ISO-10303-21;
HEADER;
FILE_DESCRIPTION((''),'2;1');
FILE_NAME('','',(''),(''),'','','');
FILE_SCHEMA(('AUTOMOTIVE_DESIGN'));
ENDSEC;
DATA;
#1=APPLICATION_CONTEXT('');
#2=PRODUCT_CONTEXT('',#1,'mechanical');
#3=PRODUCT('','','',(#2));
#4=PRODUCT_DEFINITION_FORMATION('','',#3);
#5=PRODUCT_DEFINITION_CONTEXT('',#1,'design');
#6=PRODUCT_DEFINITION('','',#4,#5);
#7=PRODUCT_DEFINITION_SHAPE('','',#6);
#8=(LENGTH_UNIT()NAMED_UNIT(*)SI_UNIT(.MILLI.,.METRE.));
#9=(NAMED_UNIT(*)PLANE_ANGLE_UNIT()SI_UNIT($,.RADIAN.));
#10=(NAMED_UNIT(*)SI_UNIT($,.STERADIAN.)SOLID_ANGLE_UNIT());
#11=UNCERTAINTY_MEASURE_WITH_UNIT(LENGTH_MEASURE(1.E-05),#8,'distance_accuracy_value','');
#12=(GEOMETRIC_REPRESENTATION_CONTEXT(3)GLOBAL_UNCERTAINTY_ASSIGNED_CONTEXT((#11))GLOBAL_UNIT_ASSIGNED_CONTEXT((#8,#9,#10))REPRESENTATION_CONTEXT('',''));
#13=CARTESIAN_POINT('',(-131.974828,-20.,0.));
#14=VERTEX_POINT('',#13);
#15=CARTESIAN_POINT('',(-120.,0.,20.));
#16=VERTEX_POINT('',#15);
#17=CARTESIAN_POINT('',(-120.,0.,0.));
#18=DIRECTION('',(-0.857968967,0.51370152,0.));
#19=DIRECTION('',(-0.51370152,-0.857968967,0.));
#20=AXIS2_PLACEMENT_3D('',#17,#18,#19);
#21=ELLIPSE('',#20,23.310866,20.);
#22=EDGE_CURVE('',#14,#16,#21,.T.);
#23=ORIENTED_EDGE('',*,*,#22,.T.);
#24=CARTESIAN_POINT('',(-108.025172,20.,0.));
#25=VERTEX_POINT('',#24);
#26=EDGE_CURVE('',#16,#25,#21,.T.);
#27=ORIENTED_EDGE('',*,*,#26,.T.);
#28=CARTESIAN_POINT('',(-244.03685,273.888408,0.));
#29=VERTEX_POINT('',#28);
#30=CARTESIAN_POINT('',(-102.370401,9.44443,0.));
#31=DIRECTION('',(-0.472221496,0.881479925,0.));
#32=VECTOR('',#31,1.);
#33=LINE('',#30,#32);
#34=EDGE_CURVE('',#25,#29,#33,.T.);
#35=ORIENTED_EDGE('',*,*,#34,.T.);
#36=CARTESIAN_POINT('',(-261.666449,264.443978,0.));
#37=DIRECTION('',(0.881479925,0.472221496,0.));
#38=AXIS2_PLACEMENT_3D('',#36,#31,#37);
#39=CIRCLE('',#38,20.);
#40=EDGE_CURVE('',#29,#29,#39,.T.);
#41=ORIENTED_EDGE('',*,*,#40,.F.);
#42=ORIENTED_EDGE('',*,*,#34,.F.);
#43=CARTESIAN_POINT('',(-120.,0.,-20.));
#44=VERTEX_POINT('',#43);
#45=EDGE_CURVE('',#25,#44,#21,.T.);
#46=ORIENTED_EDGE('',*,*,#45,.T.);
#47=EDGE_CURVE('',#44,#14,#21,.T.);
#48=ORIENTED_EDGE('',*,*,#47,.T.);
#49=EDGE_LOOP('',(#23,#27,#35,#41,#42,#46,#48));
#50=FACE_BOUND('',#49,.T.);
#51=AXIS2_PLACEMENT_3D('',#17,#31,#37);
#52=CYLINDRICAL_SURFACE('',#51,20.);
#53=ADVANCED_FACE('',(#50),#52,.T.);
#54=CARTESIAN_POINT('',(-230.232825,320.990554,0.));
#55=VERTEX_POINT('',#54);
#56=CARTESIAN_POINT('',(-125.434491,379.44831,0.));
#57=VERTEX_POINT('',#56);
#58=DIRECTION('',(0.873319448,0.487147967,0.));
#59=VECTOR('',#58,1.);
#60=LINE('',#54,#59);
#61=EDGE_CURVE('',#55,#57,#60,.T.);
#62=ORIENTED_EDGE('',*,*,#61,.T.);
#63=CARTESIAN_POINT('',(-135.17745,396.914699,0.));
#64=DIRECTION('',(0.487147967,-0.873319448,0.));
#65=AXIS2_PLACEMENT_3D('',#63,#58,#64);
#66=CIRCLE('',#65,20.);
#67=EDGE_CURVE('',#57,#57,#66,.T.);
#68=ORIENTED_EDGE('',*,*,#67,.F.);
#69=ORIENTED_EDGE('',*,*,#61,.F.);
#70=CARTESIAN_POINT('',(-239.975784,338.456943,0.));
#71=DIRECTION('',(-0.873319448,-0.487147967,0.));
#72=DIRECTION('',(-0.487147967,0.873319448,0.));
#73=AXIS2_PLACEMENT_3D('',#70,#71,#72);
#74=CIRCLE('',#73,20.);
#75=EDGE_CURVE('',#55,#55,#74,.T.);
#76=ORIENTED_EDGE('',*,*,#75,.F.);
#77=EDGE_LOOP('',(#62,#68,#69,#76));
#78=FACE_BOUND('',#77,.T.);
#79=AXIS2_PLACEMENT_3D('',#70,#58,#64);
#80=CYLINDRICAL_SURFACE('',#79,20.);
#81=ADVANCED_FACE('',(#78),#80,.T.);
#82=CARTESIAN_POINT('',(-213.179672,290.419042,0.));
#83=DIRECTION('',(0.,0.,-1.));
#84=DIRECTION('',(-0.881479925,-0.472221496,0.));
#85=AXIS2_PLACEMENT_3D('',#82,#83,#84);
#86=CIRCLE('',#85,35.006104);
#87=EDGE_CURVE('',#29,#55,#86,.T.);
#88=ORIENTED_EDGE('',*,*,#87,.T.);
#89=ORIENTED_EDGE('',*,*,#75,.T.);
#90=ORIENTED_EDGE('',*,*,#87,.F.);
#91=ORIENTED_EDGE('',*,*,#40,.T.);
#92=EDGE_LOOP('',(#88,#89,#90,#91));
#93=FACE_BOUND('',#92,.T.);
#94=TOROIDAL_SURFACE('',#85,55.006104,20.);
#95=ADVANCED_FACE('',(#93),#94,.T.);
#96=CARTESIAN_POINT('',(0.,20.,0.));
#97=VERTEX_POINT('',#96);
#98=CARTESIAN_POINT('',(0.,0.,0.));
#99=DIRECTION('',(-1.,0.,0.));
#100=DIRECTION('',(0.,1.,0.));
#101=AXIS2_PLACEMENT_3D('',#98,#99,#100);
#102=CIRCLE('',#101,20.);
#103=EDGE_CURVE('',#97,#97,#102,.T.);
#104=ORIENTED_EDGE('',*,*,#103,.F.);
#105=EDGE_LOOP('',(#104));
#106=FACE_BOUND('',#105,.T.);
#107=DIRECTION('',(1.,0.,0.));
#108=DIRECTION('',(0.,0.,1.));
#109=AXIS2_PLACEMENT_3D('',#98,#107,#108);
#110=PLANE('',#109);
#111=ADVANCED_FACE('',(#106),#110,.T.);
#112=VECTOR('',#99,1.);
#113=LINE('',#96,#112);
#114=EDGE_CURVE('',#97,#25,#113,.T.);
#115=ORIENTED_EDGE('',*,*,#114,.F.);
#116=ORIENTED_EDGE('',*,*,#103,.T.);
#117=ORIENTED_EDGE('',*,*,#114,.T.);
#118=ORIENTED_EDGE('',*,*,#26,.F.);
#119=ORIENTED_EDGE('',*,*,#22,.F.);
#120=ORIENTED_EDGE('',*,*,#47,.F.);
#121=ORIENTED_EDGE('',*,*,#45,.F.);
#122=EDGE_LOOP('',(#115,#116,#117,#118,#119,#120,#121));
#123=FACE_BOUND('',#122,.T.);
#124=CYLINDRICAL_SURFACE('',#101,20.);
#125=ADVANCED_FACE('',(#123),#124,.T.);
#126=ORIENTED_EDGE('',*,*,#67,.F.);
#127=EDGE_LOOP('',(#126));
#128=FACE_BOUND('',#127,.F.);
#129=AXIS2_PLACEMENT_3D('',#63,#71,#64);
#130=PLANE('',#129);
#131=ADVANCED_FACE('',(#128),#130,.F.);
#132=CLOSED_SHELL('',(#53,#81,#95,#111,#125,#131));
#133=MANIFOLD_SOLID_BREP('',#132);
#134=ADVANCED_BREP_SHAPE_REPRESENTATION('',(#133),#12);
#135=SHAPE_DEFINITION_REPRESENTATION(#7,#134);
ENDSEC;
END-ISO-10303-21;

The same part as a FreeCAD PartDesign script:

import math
import FreeCAD as App
import Part
import Sketcher
from FreeCAD import Vector
Q = App.Units.Quantity

doc = App.newDocument("Part")
params = doc.addObject("Spreadsheet::Sheet", "Params")
for row, (alias, value) in enumerate([
    ("sketch1_diameter", "40 mm"),
    ("sketch2_width", "120 mm"),
    ("sketch2_length", "300 mm"),
    ("sketch2_length2", "120 mm"),
], start=1):
    params.set(f"A{row}", alias)
    params.set(f"B{row}", "=" + value)
    params.setAlias(f"B{row}", alias)

body = doc.addObject("PartDesign::Body", "Body")

sketch1 = doc.addObject("Sketcher::SketchObject", "Sketch")
body.addObject(sketch1)
sketch1.AttachmentSupport = (doc.YZ_Plane, [""])
sketch1.MapMode = "FlatFace"
sketch1.addGeometry(Part.Circle(Vector(0, 0, 0), Vector(0, 0, 1), 20), False)
sketch1.addConstraint(Sketcher.Constraint("Coincident", 0, 3, -1, 1))
sketch1.addConstraint(Sketcher.Constraint("Diameter", 0, Q("40 mm")))
sketch1.setExpression("Constraints[1]", "Params.sketch1_diameter")

sketch2 = doc.addObject("Sketcher::SketchObject", "Sketch001")
body.addObject(sketch2)
sketch2.AttachmentSupport = (doc.XY_Plane, [""])
sketch2.MapMode = "FlatFace"
sketch2.addGeometry(Part.LineSegment(Vector(0, 0, 0), Vector(-120, 0, 0)), False)
sketch2.addGeometry(Part.LineSegment(Vector(-120, 0, 0), Vector(-262, 264, 0)), False)
sketch2.addGeometry(Part.ArcOfCircle(Part.Circle(Vector(-213, 290, 0), Vector(0, 0, 1), 55), math.radians(119), math.radians(208)), False)
sketch2.addGeometry(Part.LineSegment(Vector(-240, 338, 0), Vector(-135, 397, 0)), False)
sketch2.addConstraint(Sketcher.Constraint("Coincident", 0, 2, 1, 1))
sketch2.addConstraint(Sketcher.Constraint("Tangent", 1, 2, 2, 2))
sketch2.addConstraint(Sketcher.Constraint("Tangent", 2, 1, 3, 1))
sketch2.addConstraint(Sketcher.Constraint("Horizontal", 0))
sketch2.addConstraint(Sketcher.Constraint("Coincident", 0, 1, -1, 1))
sketch2.addConstraint(Sketcher.Constraint("DistanceX", 0, 2, 0, 1, Q("120 mm")))
sketch2.addConstraint(Sketcher.Constraint("Distance", 1, Q("300 mm")))
sketch2.addConstraint(Sketcher.Constraint("Distance", 3, Q("120 mm")))
sketch2.addConstraint(Sketcher.Constraint("Radius", 2, Q("55.006104 mm")))
sketch2.addConstraint(Sketcher.Constraint("DistanceX", 1, 2, 3, 2, Q("126.488998 mm")))
sketch2.addConstraint(Sketcher.Constraint("DistanceY", -1, 1, 3, 2, Q("396.914699 mm")))
sketch2.setExpression("Constraints[5]", "Params.sketch2_width")
sketch2.setExpression("Constraints[6]", "Params.sketch2_length")
sketch2.setExpression("Constraints[7]", "Params.sketch2_length2")
doc.recompute()

additivepipe = doc.addObject("PartDesign::AdditivePipe", "AdditivePipe")
body.addObject(additivepipe)
additivepipe.Profile = sketch1
additivepipe.Spine = (sketch2, ["Edge1", "Edge2", "Edge3", "Edge4"])
additivepipe.Transition = "Right corner"

doc.recompute()
